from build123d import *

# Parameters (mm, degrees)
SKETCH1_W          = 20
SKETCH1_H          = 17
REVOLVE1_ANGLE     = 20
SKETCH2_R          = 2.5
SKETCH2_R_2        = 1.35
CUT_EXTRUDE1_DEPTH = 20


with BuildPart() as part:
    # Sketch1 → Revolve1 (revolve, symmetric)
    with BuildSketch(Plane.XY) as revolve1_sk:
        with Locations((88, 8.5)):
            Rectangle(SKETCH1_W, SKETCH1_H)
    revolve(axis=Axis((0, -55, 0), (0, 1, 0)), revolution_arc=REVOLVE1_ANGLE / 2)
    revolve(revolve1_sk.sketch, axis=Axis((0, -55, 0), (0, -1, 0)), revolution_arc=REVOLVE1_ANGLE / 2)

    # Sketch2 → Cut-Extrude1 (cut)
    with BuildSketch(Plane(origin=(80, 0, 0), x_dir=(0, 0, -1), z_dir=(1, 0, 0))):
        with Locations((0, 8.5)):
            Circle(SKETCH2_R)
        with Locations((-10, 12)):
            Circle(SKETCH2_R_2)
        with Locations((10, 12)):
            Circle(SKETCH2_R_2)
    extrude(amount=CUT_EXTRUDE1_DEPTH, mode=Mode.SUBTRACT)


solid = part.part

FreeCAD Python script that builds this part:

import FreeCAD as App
import Part
import Sketcher

V = App.Vector
Q = App.Units.Quantity

doc = App.newDocument("Part")
body = doc.addObject("PartDesign::Body", "Body")

# Sketch on XY plane
sketch1 = body.newObject("Sketcher::SketchObject", "Sketch")
sketch1.AttachmentSupport = (doc.getObject("XY_Plane"), [""])
sketch1.MapMode = "FlatFace"
sketch1.addGeometry([
    Part.LineSegment(V(78, 17, 0), V(78, 0, 0)),
    Part.LineSegment(V(78, 0, 0), V(98, 0, 0)),
    Part.LineSegment(V(98, 0, 0), V(98, 17, 0)),
    Part.LineSegment(V(98, 17, 0), V(78, 17, 0)),
], False)
sketch1.addConstraint([
    Sketcher.Constraint("Coincident", 0, 2, 1, 1),
    Sketcher.Constraint("Coincident", 1, 2, 2, 1),
    Sketcher.Constraint("Coincident", 2, 2, 3, 1),
    Sketcher.Constraint("Coincident", 3, 2, 0, 1),
    Sketcher.Constraint("Vertical", 0),
    Sketcher.Constraint("Horizontal", 1),
    Sketcher.Constraint("Vertical", 2),
    Sketcher.Constraint("Horizontal", 3),
    Sketcher.Constraint("PointOnObject", 0, 2, -1),
    Sketcher.Constraint("DistanceX", 1, 1, 1, 2, Q("20 mm")),
    Sketcher.Constraint("DistanceY", 0, 2, 0, 1, Q("17 mm")),
    Sketcher.Constraint("DistanceX", -1, 1, 0, 2, Q("78 mm")),
])
revolution = body.newObject("PartDesign::Revolution", "Revolution")
revolution.Profile = sketch1
revolution.ReferenceAxis = (sketch1, ["V_Axis"])
revolution.Angle = 10

# Sketch on XY plane
sketch2 = body.newObject("Sketcher::SketchObject", "Sketch001")
sketch2.AttachmentSupport = (doc.getObject("XY_Plane"), [""])
sketch2.MapMode = "FlatFace"
sketch2.addGeometry([
    Part.LineSegment(V(78, 17, 0), V(78, 0, 0)),
    Part.LineSegment(V(78, 0, 0), V(98, 0, 0)),
    Part.LineSegment(V(98, 0, 0), V(98, 17, 0)),
    Part.LineSegment(V(98, 17, 0), V(78, 17, 0)),
], False)
sketch2.addConstraint([
    Sketcher.Constraint("Coincident", 0, 2, 1, 1),
    Sketcher.Constraint("Coincident", 1, 2, 2, 1),
    Sketcher.Constraint("Coincident", 2, 2, 3, 1),
    Sketcher.Constraint("Coincident", 3, 2, 0, 1),
    Sketcher.Constraint("Vertical", 0),
    Sketcher.Constraint("Horizontal", 1),
    Sketcher.Constraint("Vertical", 2),
    Sketcher.Constraint("Horizontal", 3),
    Sketcher.Constraint("PointOnObject", 0, 2, -1),
    Sketcher.Constraint("DistanceX", 1, 1, 1, 2, Q("20 mm")),
    Sketcher.Constraint("DistanceY", 0, 2, 0, 1, Q("17 mm")),
    Sketcher.Constraint("DistanceX", -1, 1, 0, 2, Q("78 mm")),
])
revolution2 = body.newObject("PartDesign::Revolution", "Revolution001")
revolution2.Profile = sketch2
revolution2.ReferenceAxis = (sketch2, ["V_Axis"])
revolution2.Angle = 10
revolution2.Reversed = True

# Sketch on YZ plane
sketch3 = body.newObject("Sketcher::SketchObject", "Sketch002")
sketch3.AttachmentSupport = (doc.getObject("YZ_Plane"), [""])
sketch3.MapMode = "FlatFace"
sketch3.AttachmentOffset = App.Placement(V(0, 0, 80), App.Rotation())
sketch3.addGeometry([
    Part.Circle(V(8.5, 0, 0), V(0, 0, 1), 2.5),
    Part.Circle(V(12, 10, 0), V(0, 0, 1), 1.4),
    Part.Circle(V(12, -10, 0), V(0, 0, 1), 1.4),
], False)
sketch3.addConstraint([
    Sketcher.Constraint("Equal", 1, 2),
    Sketcher.Constraint("Symmetric", 1, 3, 2, 3, -1),
    Sketcher.Constraint("PointOnObject", 0, 3, -1),
    Sketcher.Constraint("Diameter", 0, Q("5 mm")),
    Sketcher.Constraint("Diameter", 1, Q("2.7 mm")),
    Sketcher.Constraint("DistanceX", -1, 1, 1, 3, Q("12 mm")),
    Sketcher.Constraint("DistanceY", -1, 1, 1, 3, Q("10 mm")),
    Sketcher.Constraint("DistanceX", -1, 1, 0, 3, Q("8.5 mm")),
])
pocket1 = body.newObject("PartDesign::Pocket", "Pocket")
pocket1.Profile = sketch3
pocket1.Length = 20
pocket1.Reversed = True

doc.recompute()
